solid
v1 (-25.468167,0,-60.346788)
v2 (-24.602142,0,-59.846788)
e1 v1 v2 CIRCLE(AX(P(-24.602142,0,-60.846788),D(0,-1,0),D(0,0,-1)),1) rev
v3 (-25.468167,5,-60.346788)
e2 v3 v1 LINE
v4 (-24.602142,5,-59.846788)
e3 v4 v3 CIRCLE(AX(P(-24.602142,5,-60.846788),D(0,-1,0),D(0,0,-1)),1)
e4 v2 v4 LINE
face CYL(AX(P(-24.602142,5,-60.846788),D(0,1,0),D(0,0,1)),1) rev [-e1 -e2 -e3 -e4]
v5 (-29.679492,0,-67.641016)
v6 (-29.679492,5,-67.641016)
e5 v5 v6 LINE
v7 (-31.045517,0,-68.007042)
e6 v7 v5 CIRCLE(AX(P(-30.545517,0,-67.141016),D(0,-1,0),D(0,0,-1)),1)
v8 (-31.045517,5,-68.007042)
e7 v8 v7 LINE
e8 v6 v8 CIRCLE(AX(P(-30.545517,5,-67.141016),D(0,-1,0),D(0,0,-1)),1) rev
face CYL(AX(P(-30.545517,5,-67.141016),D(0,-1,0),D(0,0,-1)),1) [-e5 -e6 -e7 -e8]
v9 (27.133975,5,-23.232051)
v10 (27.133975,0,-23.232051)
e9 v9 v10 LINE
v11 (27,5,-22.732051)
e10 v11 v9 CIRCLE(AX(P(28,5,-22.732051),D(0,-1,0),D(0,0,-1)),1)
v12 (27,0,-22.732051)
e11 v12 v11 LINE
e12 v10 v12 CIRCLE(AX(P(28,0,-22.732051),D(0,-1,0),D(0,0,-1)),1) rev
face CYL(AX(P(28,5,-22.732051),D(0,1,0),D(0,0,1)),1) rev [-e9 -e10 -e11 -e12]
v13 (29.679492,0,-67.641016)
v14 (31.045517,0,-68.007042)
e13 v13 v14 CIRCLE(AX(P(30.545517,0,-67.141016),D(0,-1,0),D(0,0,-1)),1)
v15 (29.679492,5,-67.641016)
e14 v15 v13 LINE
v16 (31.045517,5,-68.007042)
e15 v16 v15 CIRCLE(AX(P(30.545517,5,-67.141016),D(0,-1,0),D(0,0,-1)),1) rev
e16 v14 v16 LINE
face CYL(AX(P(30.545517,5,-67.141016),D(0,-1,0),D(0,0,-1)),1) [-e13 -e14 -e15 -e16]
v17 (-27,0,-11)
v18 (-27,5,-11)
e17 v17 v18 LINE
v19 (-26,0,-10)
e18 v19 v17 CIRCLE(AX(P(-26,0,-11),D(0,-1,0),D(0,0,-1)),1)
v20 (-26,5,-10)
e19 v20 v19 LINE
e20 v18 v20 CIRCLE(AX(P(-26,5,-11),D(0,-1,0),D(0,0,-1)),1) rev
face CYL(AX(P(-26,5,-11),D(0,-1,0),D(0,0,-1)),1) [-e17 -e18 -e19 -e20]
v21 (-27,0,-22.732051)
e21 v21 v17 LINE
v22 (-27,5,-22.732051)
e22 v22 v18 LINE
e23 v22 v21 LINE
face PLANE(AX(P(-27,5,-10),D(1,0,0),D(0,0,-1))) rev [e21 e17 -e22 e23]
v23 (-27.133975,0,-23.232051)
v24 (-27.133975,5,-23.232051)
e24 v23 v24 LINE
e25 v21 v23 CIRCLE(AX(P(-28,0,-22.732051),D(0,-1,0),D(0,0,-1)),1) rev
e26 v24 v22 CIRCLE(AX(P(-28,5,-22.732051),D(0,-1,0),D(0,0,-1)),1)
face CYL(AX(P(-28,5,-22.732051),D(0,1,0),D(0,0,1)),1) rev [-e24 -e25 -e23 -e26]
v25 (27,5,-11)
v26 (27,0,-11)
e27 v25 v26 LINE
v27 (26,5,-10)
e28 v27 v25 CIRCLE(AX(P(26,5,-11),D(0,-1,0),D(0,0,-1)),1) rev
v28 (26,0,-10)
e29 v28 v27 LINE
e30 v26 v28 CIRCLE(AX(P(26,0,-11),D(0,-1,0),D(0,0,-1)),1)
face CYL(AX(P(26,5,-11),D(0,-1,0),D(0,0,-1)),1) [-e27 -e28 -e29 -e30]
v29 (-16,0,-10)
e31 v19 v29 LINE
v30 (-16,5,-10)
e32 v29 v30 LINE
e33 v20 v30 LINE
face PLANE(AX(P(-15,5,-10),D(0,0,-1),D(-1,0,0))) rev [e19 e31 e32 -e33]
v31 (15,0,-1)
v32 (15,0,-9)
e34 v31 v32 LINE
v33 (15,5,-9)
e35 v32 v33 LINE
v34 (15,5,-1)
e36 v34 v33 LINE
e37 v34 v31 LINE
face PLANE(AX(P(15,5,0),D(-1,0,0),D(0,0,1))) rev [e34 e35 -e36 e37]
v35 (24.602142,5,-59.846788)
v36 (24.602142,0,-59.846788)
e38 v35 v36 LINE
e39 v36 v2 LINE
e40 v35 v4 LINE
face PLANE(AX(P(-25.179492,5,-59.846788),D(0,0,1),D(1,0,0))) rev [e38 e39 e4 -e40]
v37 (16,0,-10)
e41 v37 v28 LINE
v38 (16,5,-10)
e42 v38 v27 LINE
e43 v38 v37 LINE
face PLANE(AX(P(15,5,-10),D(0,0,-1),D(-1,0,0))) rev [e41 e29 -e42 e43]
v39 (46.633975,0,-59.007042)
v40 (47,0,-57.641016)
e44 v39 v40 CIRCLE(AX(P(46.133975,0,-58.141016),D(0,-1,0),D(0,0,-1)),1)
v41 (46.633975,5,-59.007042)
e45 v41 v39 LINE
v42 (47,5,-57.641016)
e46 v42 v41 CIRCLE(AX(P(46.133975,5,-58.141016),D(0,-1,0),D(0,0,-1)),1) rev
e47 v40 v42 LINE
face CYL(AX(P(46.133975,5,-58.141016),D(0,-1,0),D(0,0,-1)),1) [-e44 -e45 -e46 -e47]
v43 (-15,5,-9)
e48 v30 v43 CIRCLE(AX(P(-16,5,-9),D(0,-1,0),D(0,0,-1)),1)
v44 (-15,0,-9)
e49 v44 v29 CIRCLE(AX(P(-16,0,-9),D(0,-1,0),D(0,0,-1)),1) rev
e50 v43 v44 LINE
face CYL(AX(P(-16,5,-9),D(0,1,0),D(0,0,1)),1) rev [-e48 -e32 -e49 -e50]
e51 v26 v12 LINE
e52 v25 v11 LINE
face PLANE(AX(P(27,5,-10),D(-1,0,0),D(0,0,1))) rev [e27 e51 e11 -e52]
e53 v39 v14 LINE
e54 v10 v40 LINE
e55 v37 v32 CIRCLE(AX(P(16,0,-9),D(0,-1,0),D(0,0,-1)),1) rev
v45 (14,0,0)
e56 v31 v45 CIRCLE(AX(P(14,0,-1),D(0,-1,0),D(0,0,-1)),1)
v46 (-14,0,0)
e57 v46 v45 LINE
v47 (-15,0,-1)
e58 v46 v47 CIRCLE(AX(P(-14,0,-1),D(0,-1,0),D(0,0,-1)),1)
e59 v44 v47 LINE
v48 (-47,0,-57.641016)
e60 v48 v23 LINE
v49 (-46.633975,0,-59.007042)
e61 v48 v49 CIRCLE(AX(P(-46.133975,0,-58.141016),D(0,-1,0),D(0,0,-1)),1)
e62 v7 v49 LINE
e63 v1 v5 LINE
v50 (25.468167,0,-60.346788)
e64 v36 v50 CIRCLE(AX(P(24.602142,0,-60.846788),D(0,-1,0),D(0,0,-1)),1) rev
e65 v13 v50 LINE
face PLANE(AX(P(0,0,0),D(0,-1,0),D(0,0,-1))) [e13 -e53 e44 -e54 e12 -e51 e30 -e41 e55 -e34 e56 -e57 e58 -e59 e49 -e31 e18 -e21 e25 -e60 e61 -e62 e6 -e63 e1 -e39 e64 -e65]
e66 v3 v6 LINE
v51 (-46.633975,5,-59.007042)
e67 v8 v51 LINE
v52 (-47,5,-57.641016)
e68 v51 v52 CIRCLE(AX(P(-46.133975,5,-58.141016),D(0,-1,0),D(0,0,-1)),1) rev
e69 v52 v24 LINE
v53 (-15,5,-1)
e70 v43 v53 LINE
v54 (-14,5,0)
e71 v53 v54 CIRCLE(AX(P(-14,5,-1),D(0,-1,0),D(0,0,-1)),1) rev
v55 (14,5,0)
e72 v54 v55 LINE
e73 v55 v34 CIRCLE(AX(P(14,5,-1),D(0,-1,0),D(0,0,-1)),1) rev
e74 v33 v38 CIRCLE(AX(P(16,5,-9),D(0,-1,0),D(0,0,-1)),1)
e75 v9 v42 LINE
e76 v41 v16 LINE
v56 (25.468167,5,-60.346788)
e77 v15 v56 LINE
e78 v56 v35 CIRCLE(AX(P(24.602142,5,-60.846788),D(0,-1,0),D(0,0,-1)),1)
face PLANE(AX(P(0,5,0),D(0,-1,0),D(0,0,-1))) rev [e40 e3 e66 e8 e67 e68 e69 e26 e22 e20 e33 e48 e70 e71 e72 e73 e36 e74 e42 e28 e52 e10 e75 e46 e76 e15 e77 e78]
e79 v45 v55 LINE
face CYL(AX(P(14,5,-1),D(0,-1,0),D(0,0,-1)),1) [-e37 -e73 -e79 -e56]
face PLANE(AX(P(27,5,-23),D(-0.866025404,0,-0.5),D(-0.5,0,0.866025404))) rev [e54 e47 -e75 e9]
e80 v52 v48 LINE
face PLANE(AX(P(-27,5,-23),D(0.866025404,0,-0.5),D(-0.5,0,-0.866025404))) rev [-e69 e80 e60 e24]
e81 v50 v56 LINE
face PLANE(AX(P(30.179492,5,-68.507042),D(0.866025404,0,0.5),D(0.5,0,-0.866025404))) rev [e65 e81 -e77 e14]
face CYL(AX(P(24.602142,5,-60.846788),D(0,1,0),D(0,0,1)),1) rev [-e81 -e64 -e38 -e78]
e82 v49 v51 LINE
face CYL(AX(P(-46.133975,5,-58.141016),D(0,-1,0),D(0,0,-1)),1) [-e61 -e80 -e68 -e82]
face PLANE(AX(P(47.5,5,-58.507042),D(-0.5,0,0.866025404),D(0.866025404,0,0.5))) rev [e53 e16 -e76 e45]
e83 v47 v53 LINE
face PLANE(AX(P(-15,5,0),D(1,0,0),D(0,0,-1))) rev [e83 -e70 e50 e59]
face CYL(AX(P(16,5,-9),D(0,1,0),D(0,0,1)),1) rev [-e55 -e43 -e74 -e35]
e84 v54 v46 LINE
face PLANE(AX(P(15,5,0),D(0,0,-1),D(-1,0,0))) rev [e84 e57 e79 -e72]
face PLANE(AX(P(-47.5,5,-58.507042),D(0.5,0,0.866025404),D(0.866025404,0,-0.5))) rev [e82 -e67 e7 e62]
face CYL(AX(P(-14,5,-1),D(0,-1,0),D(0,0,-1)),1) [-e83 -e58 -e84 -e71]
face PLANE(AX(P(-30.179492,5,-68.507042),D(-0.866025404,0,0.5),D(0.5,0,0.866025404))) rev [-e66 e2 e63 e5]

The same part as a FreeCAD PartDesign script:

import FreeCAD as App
import Part
import Sketcher

V = App.Vector
Q = App.Units.Quantity


def edges_at(feature, points):
    """Names of the edges that pass closest to the given points."""
    edges = feature.Shape.Edges
    near = lambda p: min(range(len(edges)), key=lambda i: edges[i].distToShape(Part.Vertex(*p))[0])
    return sorted({f"Edge{near(p) + 1}" for p in points})

doc = App.newDocument("Part")
body = doc.addObject("PartDesign::Body", "Body")

sketch1 = body.newObject("Sketcher::SketchObject", "Sketch")
sketch1.AttachmentSupport = (doc.getObject("XZ_Plane"), [""])
sketch1.MapMode = "FlatFace"
sketch1.addGeometry([
    Part.LineSegment(V(-15, 0, 0), V(15, 0, 0)),
    Part.LineSegment(V(15, 0, 0), V(15, -10, 0)),
    Part.LineSegment(V(15, -10, 0), V(27, -10, 0)),
    Part.LineSegment(V(27, -10, 0), V(27, -23, 0)),
    Part.LineSegment(V(27, -23, 0), V(48, -59, 0)),
    Part.LineSegment(V(48, -59, 0), V(30, -69, 0)),
    Part.LineSegment(V(30, -69, 0), V(25, -60, 0)),
    Part.LineSegment(V(25, -60, 0), V(-25, -60, 0)),
    Part.LineSegment(V(-25, -60, 0), V(-30, -69, 0)),
    Part.LineSegment(V(-30, -69, 0), V(-48, -59, 0)),
    Part.LineSegment(V(-48, -59, 0), V(-27, -23, 0)),
    Part.LineSegment(V(-27, -23, 0), V(-27, -10, 0)),
    Part.LineSegment(V(-27, -10, 0), V(-15, -10, 0)),
    Part.LineSegment(V(-15, -10, 0), V(-15, 0, 0)),
], False)
sketch1.addConstraint([
    Sketcher.Constraint("Coincident", 0, 2, 1, 1),
    Sketcher.Constraint("Coincident", 1, 2, 2, 1),
    Sketcher.Constraint("Coincident", 2, 2, 3, 1),
    Sketcher.Constraint("Coincident", 3, 2, 4, 1),
    Sketcher.Constraint("Coincident", 4, 2, 5, 1),
    Sketcher.Constraint("Coincident", 5, 2, 6, 1),
    Sketcher.Constraint("Coincident", 6, 2, 7, 1),
    Sketcher.Constraint("Coincident", 7, 2, 8, 1),
    Sketcher.Constraint("Coincident", 8, 2, 9, 1),
    Sketcher.Constraint("Coincident", 9, 2, 10, 1),
    Sketcher.Constraint("Coincident", 10, 2, 11, 1),
    Sketcher.Constraint("Coincident", 11, 2, 12, 1),
    Sketcher.Constraint("Coincident", 12, 2, 13, 1),
    Sketcher.Constraint("Coincident", 13, 2, 0, 1),
    Sketcher.Constraint("Horizontal", 0),
    Sketcher.Constraint("Vertical", 1),
    Sketcher.Constraint("Horizontal", 2),
    Sketcher.Constraint("Vertical", 3),
    Sketcher.Constraint("Horizontal", 7),
    Sketcher.Constraint("Vertical", 11),
    Sketcher.Constraint("Horizontal", 12),
    Sketcher.Constraint("Vertical", 13),
    Sketcher.Constraint("Symmetric", 0, 2, 13, 2, -1, 1),
    Sketcher.Constraint("Symmetric", 5, 2, 8, 2, -2),
    Sketcher.Constraint("Symmetric", 4, 2, 9, 2, -2),
    Sketcher.Constraint("Symmetric", 3, 2, 10, 2, -2),
    Sketcher.Constraint("Perpendicular", 4, 5),
    Sketcher.Constraint("Perpendicular", 5, 6),
    Sketcher.Constraint("Perpendicular", 8, 9),
    Sketcher.Constraint("Horizontal", 2, 2, 11, 2),
    Sketcher.Constraint("DistanceX", 0, 1, 0, 2, 30.0),
    Sketcher.Constraint("DistanceX", 2, 1, 2, 2, 12.0),
    Sketcher.Constraint("DistanceY", 1, 2, 1, 1, 10.0),
    Sketcher.Constraint("DistanceY", 3, 2, 3, 1, 13.0),
    Sketcher.Constraint("Angle", 4, Q("-60 deg")),
    Sketcher.Constraint("Distance", 4, 41.0),
    Sketcher.Constraint("Distance", 5, 20.0),
    Sketcher.Constraint("Distance", 6, 10.0),
])
pad1 = body.newObject("PartDesign::Pad", "Pad")
pad1.Profile = sketch1
pad1.Length = 5
pad1.Reversed = True
doc.recompute()

fillet = body.newObject("PartDesign::Fillet", "Fillet")
fillet.Base = (pad1, edges_at(pad1, [
    (-27, 2.5, -10),
    (-27, 2.5, -23),
    (-47.5, 2.5, -58.507),
    (-30.179, 2.5, -68.507),
    (-25.179, 2.5, -59.847),
    (25.179, 2.5, -59.847),
    (30.179, 2.5, -68.507),
    (47.5, 2.5, -58.507),
    (27, 2.5, -23),
    (27, 2.5, -10),
    (15, 2.5, -10),
    (15, 2.5, 0),
    (-15, 2.5, 0),
    (-15, 2.5, -10),
]))
fillet.Radius = 1

doc.recompute()
